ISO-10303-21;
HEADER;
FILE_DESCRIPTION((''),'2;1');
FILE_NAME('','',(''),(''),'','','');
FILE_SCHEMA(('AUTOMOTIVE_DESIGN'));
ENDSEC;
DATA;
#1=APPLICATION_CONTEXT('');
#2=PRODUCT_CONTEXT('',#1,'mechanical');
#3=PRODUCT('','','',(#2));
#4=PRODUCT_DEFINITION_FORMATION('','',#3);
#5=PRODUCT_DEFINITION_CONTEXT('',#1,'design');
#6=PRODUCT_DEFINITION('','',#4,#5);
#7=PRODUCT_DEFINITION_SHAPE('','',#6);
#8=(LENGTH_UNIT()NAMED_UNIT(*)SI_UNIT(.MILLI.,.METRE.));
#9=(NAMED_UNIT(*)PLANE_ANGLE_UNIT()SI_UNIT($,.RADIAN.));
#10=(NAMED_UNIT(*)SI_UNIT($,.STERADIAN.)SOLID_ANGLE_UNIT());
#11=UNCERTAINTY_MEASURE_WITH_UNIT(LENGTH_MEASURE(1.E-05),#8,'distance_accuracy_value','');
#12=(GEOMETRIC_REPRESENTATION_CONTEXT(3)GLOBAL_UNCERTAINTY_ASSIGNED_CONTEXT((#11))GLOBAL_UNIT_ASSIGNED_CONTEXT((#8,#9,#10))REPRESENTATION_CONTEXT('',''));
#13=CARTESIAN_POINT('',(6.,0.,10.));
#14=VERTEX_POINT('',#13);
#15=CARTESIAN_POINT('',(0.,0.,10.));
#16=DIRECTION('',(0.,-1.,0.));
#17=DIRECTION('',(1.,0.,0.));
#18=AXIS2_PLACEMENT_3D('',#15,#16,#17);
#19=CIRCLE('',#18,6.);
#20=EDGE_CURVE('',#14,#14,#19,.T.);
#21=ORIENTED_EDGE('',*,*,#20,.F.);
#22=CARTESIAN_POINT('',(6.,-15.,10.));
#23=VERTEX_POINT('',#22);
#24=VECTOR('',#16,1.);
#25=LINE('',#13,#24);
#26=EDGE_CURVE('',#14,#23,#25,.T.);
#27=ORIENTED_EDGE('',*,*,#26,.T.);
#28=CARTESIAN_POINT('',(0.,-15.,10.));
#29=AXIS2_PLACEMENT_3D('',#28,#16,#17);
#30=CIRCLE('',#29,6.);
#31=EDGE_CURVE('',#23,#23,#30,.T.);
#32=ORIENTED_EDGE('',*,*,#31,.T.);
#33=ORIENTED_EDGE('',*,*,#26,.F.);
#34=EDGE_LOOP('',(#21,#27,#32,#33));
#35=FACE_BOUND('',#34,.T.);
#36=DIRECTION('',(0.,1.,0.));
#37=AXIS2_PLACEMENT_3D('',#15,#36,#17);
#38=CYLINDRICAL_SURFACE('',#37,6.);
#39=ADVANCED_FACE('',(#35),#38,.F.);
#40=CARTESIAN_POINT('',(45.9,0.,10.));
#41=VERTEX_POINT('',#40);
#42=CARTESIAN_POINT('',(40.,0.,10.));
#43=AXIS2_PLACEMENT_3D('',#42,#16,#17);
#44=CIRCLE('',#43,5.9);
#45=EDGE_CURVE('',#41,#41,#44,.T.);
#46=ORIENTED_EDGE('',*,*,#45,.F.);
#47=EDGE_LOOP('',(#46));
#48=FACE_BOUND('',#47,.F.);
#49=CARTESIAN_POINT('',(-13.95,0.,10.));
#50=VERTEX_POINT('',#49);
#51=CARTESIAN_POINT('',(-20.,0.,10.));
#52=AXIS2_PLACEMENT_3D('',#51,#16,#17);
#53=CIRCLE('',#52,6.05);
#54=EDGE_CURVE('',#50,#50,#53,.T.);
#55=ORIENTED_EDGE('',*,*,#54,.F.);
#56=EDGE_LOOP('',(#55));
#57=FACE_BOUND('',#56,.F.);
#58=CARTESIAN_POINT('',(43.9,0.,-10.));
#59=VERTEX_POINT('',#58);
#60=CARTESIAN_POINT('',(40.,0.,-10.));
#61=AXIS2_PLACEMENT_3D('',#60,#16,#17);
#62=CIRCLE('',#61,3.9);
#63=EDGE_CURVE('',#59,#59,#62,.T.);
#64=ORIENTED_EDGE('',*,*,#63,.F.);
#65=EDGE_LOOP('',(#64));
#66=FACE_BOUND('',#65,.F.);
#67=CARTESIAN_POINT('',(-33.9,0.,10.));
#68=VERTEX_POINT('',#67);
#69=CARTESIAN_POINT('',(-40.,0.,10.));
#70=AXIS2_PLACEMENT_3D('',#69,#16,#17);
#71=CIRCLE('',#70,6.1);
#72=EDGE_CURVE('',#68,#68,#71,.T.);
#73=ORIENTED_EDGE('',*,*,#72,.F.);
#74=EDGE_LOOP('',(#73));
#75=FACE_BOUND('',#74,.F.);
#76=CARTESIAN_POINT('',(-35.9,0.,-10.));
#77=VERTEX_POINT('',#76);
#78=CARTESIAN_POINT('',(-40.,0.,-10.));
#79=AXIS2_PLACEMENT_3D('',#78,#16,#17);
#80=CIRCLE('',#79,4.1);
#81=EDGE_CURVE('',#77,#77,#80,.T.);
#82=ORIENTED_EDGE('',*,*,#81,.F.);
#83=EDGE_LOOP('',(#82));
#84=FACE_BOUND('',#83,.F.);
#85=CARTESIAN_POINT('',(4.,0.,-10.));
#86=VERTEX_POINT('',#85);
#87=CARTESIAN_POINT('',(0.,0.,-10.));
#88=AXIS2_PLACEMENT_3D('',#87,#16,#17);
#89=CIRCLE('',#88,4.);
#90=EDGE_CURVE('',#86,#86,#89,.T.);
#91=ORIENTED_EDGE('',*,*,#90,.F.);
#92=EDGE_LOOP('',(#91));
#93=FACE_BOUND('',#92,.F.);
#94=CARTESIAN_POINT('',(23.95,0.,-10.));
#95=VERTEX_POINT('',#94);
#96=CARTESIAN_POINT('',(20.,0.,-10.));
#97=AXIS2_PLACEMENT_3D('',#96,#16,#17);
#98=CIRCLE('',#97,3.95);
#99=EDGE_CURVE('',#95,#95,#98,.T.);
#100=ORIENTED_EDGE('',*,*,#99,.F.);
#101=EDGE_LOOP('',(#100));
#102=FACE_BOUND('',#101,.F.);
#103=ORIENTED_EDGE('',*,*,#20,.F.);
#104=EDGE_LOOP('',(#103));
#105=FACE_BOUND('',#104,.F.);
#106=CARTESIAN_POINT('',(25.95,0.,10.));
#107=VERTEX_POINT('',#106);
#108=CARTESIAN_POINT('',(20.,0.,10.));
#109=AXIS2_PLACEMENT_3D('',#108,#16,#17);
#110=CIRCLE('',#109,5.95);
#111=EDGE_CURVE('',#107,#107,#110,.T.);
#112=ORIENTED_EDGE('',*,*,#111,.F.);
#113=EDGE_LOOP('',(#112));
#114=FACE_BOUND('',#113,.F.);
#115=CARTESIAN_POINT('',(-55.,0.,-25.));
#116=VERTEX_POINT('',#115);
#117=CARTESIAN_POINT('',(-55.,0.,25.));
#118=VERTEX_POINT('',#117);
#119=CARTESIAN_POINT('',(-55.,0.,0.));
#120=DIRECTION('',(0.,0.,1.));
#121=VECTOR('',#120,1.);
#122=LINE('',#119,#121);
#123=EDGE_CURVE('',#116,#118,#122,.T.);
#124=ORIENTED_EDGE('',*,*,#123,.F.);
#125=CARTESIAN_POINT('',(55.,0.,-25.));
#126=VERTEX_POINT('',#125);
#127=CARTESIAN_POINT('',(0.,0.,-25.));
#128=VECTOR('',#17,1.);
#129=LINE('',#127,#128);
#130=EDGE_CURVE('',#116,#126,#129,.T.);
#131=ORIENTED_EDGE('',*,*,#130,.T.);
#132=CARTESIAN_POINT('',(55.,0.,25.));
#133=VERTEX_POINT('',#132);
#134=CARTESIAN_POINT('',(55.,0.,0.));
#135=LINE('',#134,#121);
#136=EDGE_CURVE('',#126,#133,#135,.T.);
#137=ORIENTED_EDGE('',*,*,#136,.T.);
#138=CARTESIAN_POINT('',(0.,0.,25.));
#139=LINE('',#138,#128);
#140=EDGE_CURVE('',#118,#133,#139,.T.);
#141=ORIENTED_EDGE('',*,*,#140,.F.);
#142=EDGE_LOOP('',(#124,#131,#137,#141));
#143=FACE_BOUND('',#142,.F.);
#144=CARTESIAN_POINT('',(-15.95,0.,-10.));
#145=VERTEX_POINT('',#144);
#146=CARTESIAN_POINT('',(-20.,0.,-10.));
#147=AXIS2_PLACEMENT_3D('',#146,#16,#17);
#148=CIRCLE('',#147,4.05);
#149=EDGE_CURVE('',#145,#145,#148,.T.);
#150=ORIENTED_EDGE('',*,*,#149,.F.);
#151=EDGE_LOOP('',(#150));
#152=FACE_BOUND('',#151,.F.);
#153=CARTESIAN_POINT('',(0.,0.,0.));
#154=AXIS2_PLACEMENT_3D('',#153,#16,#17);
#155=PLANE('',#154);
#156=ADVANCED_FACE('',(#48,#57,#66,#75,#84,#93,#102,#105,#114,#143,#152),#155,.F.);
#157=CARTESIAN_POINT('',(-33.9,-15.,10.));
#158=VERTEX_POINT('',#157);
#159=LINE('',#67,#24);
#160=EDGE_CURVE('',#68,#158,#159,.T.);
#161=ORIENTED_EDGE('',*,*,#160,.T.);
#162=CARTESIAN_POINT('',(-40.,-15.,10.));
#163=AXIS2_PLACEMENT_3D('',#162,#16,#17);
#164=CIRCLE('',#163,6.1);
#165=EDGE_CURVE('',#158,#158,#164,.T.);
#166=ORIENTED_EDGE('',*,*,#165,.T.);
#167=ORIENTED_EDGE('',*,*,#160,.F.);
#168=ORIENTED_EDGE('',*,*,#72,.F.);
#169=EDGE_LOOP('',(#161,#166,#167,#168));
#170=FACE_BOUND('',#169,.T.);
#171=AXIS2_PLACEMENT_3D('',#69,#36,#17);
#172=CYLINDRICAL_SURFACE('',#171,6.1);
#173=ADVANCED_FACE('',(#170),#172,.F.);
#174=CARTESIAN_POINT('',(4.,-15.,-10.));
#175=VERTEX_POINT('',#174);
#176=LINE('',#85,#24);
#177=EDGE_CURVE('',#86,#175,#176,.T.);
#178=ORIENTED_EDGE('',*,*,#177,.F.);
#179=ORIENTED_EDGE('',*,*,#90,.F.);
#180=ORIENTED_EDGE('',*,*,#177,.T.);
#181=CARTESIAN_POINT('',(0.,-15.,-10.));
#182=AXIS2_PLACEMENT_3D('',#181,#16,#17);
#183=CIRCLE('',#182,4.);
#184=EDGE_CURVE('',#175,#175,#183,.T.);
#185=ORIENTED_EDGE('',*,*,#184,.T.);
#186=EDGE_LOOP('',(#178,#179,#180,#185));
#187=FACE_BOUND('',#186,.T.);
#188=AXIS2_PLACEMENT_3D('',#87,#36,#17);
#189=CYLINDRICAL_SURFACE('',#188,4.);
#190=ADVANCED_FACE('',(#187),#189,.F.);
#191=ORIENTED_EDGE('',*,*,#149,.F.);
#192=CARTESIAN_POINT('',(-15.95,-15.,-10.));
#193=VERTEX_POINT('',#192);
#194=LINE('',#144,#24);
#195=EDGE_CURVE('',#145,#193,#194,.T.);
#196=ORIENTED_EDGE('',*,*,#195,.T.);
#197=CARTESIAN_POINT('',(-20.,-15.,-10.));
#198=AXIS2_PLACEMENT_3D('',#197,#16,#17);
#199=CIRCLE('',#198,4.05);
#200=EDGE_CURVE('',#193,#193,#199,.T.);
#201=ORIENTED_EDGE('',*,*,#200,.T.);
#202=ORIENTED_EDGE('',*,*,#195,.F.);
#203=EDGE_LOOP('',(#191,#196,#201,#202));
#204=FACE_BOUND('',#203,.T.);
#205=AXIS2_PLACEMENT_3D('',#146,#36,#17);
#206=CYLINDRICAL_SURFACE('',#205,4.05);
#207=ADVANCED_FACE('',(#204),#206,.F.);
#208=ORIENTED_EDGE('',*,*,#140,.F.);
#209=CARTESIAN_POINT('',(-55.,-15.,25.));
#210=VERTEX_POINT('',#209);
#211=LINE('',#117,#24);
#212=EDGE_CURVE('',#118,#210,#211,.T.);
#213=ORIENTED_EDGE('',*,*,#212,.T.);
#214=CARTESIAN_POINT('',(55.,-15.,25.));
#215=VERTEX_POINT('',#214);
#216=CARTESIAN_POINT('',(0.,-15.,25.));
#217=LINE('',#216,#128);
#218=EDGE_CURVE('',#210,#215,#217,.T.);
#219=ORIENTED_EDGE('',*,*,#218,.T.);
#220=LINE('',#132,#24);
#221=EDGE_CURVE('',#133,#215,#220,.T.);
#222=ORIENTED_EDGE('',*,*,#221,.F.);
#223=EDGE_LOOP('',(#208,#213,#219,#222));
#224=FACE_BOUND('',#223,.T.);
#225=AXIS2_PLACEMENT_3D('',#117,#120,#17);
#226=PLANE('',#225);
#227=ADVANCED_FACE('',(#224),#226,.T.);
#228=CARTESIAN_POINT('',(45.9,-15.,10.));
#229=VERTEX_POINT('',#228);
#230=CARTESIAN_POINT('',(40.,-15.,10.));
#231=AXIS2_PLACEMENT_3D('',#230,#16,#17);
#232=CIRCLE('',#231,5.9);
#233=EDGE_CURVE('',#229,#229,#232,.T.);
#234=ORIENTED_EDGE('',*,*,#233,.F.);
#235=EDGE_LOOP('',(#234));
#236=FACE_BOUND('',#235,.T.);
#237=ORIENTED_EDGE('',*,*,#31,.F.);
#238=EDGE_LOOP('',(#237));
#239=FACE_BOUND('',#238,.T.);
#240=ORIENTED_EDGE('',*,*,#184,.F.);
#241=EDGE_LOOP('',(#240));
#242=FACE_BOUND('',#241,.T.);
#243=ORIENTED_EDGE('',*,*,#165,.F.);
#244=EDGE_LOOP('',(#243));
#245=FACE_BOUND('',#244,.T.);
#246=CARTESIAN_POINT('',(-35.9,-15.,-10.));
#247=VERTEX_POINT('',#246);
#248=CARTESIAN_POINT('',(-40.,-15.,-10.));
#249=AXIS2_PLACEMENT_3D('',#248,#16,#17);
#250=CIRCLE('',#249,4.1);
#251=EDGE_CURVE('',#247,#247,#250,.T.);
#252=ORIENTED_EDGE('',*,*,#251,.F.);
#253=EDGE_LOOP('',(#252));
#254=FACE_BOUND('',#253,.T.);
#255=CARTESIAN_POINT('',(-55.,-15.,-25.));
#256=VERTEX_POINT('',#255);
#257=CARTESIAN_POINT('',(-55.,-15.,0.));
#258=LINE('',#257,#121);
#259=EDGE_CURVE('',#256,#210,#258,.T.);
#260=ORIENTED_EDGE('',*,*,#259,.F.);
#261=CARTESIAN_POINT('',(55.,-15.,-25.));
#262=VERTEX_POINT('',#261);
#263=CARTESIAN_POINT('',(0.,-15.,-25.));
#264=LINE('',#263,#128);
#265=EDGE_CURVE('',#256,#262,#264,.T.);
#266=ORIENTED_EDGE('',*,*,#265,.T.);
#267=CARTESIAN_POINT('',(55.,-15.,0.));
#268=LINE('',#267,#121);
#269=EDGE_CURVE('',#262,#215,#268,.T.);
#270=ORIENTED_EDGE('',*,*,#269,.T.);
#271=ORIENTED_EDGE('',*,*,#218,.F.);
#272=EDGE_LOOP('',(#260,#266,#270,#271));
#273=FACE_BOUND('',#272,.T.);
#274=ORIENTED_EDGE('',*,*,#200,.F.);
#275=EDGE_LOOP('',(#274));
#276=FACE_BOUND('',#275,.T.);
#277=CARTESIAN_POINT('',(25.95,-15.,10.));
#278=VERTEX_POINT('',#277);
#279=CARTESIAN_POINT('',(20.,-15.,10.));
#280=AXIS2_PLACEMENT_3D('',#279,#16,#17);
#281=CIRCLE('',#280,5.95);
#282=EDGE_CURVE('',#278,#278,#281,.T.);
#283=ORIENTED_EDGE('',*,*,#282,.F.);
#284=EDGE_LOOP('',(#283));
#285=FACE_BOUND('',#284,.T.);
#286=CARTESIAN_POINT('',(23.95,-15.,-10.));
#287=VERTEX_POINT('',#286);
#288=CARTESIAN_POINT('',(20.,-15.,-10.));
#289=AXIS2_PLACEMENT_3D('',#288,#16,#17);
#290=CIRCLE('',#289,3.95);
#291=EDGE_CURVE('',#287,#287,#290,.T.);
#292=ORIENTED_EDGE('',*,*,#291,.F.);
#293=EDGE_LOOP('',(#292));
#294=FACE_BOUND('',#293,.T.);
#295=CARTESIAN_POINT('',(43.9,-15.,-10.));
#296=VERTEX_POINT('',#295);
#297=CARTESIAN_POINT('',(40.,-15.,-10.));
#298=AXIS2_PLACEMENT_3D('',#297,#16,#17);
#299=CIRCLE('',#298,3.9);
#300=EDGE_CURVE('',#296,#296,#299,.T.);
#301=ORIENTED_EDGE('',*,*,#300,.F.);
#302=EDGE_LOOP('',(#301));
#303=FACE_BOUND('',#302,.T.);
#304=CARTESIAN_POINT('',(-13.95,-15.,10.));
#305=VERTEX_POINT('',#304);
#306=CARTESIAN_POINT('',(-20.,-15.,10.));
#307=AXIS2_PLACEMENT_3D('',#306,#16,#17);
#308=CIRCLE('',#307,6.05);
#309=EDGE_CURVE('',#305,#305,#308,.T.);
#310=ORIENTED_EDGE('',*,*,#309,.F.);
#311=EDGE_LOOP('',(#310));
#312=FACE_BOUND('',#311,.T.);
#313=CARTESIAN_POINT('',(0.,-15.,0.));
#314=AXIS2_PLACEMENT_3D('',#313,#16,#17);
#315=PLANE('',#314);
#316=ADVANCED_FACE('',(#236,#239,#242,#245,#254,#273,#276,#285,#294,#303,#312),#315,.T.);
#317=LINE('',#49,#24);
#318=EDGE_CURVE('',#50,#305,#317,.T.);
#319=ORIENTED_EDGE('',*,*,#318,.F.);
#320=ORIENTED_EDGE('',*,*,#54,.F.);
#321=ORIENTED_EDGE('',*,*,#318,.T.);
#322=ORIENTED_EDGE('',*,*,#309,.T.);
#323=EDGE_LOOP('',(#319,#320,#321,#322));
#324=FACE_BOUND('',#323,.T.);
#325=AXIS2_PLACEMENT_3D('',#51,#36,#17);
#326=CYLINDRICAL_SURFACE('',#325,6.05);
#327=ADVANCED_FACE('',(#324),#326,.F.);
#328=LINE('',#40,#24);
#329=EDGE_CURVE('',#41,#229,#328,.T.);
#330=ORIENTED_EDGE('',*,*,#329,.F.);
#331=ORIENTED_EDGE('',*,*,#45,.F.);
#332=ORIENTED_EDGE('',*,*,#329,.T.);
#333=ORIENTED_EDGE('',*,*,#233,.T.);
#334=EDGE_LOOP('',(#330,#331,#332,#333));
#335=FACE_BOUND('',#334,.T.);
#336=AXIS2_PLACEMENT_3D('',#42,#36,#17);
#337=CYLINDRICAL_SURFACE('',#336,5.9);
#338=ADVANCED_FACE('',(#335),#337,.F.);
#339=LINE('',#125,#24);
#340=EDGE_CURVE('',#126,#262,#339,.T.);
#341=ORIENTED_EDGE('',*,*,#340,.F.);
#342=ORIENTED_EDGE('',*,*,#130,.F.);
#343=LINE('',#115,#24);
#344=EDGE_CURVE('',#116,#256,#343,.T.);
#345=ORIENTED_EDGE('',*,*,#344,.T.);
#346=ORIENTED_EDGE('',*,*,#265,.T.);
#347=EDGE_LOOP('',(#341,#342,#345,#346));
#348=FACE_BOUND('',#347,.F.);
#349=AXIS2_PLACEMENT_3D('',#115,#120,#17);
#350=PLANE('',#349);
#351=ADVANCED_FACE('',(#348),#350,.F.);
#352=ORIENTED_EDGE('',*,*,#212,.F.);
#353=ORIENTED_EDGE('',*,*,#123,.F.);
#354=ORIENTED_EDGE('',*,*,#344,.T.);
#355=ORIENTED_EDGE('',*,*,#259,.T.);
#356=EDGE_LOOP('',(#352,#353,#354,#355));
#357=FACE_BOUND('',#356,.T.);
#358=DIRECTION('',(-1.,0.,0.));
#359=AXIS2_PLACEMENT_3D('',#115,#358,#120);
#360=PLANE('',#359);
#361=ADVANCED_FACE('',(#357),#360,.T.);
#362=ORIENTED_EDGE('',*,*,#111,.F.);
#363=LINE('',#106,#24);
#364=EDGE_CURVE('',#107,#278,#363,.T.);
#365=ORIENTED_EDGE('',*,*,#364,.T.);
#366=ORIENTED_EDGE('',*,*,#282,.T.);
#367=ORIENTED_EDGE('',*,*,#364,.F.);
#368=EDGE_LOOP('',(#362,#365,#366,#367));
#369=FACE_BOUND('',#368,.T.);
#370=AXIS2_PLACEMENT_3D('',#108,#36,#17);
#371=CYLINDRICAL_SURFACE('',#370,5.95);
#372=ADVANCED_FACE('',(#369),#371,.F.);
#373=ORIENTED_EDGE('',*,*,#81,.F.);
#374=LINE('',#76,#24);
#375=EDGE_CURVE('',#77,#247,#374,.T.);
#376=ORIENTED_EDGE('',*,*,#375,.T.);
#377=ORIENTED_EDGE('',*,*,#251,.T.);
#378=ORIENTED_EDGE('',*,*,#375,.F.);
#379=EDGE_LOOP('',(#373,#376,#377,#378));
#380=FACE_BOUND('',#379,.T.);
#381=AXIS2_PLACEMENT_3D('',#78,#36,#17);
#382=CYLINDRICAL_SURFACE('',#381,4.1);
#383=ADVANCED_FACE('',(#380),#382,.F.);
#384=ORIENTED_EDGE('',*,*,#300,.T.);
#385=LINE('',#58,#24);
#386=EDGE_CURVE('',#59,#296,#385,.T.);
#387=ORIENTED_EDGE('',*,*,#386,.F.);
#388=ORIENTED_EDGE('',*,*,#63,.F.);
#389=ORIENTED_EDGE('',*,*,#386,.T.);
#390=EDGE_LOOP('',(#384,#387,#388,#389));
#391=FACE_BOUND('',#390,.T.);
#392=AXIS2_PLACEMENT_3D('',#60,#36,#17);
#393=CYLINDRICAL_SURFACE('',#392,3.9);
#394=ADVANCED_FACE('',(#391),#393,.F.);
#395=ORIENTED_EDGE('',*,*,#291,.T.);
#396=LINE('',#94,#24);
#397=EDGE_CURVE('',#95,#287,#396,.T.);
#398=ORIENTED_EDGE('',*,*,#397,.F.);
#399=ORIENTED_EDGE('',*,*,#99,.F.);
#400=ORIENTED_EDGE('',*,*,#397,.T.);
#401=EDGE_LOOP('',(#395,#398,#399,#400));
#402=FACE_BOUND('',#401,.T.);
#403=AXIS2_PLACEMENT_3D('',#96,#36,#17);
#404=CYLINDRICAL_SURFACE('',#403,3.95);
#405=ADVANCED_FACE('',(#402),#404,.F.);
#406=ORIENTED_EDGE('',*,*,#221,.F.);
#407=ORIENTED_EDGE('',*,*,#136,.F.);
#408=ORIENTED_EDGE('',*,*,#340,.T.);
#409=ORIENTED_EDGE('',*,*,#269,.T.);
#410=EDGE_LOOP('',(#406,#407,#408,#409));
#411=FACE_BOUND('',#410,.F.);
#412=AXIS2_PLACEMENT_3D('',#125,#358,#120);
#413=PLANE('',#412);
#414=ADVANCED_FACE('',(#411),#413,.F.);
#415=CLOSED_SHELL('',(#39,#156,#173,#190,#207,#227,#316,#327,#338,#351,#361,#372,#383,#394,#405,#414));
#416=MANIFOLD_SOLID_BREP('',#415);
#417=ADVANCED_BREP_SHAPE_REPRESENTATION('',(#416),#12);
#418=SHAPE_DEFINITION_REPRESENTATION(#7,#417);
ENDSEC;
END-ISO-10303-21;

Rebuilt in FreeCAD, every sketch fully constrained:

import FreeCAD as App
import Part
import Sketcher


def add_polygon(sketch, points):
    """Adds a closed chain of lines whose ends are joined by coincident constraints."""
    first, n = sketch.GeometryCount, len(points)
    for a, b in zip(points, points[1:] + points[:1]):
        sketch.addGeometry(Part.LineSegment(App.Vector(*a, 0), App.Vector(*b, 0)), False)
    for i in range(n):
        sketch.addConstraint(Sketcher.Constraint("Coincident", first + i, 2, first + (i + 1) % n, 1))

doc = App.newDocument("Part")
body = doc.addObject("PartDesign::Body", "Body")

# Sketch on XZ plane
sketch1 = body.newObject("Sketcher::SketchObject", "Sketch")
sketch1.AttachmentSupport = (doc.getObject("XZ_Plane"), [""])
sketch1.MapMode = "FlatFace"
add_polygon(sketch1, [(-55, 25), (-55, -25), (55, -25), (55, 25)])  # lines 0-3
sketch1.addGeometry(Part.Circle(App.Vector(-40, -10, 0), App.Vector(0, 0, 1), 4.1), False)  # 4
sketch1.addGeometry(Part.Circle(App.Vector(-20, -10, 0), App.Vector(0, 0, 1), 4), False)  # 5
sketch1.addGeometry(Part.Circle(App.Vector(0, -10, 0), App.Vector(0, 0, 1), 4), False)  # 6
sketch1.addGeometry(Part.Circle(App.Vector(20, -10, 0), App.Vector(0, 0, 1), 4), False)  # 7
sketch1.addGeometry(Part.Circle(App.Vector(40, -10, 0), App.Vector(0, 0, 1), 3.9), False)  # 8
sketch1.addGeometry(Part.Circle(App.Vector(-40, 10, 0), App.Vector(0, 0, 1), 6.1), False)  # 9
sketch1.addGeometry(Part.Circle(App.Vector(-20, 10, 0), App.Vector(0, 0, 1), 6), False)  # 10
sketch1.addGeometry(Part.Circle(App.Vector(0, 10, 0), App.Vector(0, 0, 1), 6), False)  # 11
sketch1.addGeometry(Part.Circle(App.Vector(20, 10, 0), App.Vector(0, 0, 1), 6), False)  # 12
sketch1.addGeometry(Part.Circle(App.Vector(40, 10, 0), App.Vector(0, 0, 1), 5.9), False)  # 13
sketch1.addConstraint([
    Sketcher.Constraint("Vertical", 0),
    Sketcher.Constraint("Horizontal", 1),
    Sketcher.Constraint("Vertical", 2),
    Sketcher.Constraint("Horizontal", 3),
    Sketcher.Constraint("Symmetric", 8, 3, 9, 3, -1, 1),
    Sketcher.Constraint("Symmetric", 7, 3, 10, 3, -1, 1),
    Sketcher.Constraint("Symmetric", 6, 3, 11, 3, -1, 1),
    Sketcher.Constraint("Symmetric", 5, 3, 12, 3, -1, 1),
    Sketcher.Constraint("Symmetric", 4, 3, 13, 3, -1, 1),
    Sketcher.Constraint("Symmetric", 0, 2, 2, 2, -1, 1),
    Sketcher.Constraint("Symmetric", 5, 3, 7, 3, -2),
    Sketcher.Constraint("Symmetric", 4, 3, 8, 3, -2),
    Sketcher.Constraint("PointOnObject", 6, 3, -2),
    Sketcher.Constraint("Horizontal", 4, 3, 5, 3),
    Sketcher.Constraint("Horizontal", 5, 3, 6, 3),
    Sketcher.Constraint("Diameter", 6, 8.0),
    Sketcher.Constraint("Diameter", 11, 12.0),
    Sketcher.Constraint("Diameter", 4, 8.2),
    Sketcher.Constraint("Diameter", 5, 8.1),
    Sketcher.Constraint("Diameter", 7, 7.9),
    Sketcher.Constraint("Diameter", 8, 7.8),
    Sketcher.Constraint("Diameter", 9, 12.2),
    Sketcher.Constraint("Diameter", 10, 12.1),
    Sketcher.Constraint("Diameter", 12, 11.9),
    Sketcher.Constraint("Diameter", 13, 11.8),
    Sketcher.Constraint("DistanceX", 1, 1, 1, 2, 110.0),
    Sketcher.Constraint("DistanceY", 0, 2, 0, 1, 50.0),
    Sketcher.Constraint("DistanceX", 4, 3, -1, 1, 40.0),
    Sketcher.Constraint("DistanceY", 4, 3, -1, 1, 10.0),
    Sketcher.Constraint("DistanceX", 5, 3, -1, 1, 20.0),
])
pad1 = body.newObject("PartDesign::Pad", "Pad")
pad1.Profile = sketch1
pad1.Length = 15

doc.recompute()
